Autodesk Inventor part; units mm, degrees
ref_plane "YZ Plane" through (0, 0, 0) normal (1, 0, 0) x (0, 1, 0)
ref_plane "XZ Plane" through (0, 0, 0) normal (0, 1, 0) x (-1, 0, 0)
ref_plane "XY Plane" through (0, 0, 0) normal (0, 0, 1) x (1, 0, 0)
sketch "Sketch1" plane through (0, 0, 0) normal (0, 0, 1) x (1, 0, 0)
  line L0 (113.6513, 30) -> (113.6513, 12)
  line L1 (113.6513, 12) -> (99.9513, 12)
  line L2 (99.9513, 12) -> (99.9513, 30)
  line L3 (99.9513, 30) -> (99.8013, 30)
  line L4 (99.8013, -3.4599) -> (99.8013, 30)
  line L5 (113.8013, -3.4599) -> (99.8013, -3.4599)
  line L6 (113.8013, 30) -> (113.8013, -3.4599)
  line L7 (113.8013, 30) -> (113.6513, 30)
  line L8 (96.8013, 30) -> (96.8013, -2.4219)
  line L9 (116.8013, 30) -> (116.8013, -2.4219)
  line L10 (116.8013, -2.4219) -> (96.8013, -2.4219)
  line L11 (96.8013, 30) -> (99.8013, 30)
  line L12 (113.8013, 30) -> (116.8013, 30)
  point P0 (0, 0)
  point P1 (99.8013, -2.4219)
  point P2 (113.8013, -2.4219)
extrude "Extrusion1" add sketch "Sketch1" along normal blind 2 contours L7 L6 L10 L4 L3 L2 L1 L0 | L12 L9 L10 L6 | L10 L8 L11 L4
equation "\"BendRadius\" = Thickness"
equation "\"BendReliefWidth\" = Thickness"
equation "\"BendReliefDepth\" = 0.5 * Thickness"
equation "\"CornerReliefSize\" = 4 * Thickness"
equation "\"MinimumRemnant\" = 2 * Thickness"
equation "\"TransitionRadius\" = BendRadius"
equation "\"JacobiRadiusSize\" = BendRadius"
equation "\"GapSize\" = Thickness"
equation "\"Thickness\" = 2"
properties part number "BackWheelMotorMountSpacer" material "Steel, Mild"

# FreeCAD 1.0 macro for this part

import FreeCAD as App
import Part
import Sketcher

V = App.Vector


def add_polygon(sketch, points):
    """Adds a closed chain of lines whose ends are joined by coincident constraints."""
    first, n = sketch.GeometryCount, len(points)
    for a, b in zip(points, points[1:] + points[:1]):
        sketch.addGeometry(Part.LineSegment(App.Vector(*a, 0), App.Vector(*b, 0)), False)
    for i in range(n):
        sketch.addConstraint(Sketcher.Constraint("Coincident", first + i, 2, first + (i + 1) % n, 1))

doc = App.newDocument("Part")
params = doc.addObject("Spreadsheet::Sheet", "Params")
for row, (alias, value) in enumerate([
    ("sketch1_width", "20 mm"),
    ("sketch1_height", "18 mm"),
    ("sketch1_width2", "13.7 mm"),
    ("pad1_length", "2 mm"),
], start=1):
    params.set(f"A{row}", alias)
    params.set(f"B{row}", "=" + value)
    params.setAlias(f"B{row}", alias)

body = doc.addObject("PartDesign::Body", "Body")

# Sketch on XY plane
sketch1 = doc.addObject("Sketcher::SketchObject", "Sketch")
body.addObject(sketch1)
sketch1.AttachmentSupport = (doc.XY_Plane, [""])
sketch1.MapMode = "FlatFace"
add_polygon(sketch1, [(113.7, 30), (113.7, 12), (100, 12), (100, 30), (96.8, 30), (96.8, -2.4), (116.8, -2.4), (116.8, 30)])  # lines 0-7
sketch1.addConstraint([
    Sketcher.Constraint("Vertical", 0),
    Sketcher.Constraint("Horizontal", 1),
    Sketcher.Constraint("Vertical", 2),
    Sketcher.Constraint("Horizontal", 3),
    Sketcher.Constraint("Vertical", 4),
    Sketcher.Constraint("Horizontal", 5),
    Sketcher.Constraint("Vertical", 6),
    Sketcher.Constraint("Horizontal", 7),
    Sketcher.Constraint("Horizontal", 3, 2, 6, 2),
    Sketcher.Constraint("Equal", 3, 7),
    Sketcher.Constraint("DistanceX", 5, 1, 5, 2, 20.0),
    Sketcher.Constraint("DistanceY", 0, 2, 0, 1, 18.0),
    Sketcher.Constraint("DistanceX", 1, 2, 1, 1, 13.7),
    Sketcher.Constraint("DistanceY", -1, 1, 0, 2, 12.0),
    Sketcher.Constraint("DistanceY", 4, 2, 4, 1, 32.422),
    Sketcher.Constraint("DistanceX", -1, 1, 0, 2, 113.6513),
])
sketch1.setExpression("Constraints[18]", "Params.sketch1_width")
sketch1.setExpression("Constraints[19]", "Params.sketch1_height")
sketch1.setExpression("Constraints[20]", "Params.sketch1_width2")
pad1 = doc.addObject("PartDesign::Pad", "Pad")
body.addObject(pad1)
pad1.Profile = sketch1
pad1.setExpression("Length", "Params.pad1_length")

doc.recompute()
